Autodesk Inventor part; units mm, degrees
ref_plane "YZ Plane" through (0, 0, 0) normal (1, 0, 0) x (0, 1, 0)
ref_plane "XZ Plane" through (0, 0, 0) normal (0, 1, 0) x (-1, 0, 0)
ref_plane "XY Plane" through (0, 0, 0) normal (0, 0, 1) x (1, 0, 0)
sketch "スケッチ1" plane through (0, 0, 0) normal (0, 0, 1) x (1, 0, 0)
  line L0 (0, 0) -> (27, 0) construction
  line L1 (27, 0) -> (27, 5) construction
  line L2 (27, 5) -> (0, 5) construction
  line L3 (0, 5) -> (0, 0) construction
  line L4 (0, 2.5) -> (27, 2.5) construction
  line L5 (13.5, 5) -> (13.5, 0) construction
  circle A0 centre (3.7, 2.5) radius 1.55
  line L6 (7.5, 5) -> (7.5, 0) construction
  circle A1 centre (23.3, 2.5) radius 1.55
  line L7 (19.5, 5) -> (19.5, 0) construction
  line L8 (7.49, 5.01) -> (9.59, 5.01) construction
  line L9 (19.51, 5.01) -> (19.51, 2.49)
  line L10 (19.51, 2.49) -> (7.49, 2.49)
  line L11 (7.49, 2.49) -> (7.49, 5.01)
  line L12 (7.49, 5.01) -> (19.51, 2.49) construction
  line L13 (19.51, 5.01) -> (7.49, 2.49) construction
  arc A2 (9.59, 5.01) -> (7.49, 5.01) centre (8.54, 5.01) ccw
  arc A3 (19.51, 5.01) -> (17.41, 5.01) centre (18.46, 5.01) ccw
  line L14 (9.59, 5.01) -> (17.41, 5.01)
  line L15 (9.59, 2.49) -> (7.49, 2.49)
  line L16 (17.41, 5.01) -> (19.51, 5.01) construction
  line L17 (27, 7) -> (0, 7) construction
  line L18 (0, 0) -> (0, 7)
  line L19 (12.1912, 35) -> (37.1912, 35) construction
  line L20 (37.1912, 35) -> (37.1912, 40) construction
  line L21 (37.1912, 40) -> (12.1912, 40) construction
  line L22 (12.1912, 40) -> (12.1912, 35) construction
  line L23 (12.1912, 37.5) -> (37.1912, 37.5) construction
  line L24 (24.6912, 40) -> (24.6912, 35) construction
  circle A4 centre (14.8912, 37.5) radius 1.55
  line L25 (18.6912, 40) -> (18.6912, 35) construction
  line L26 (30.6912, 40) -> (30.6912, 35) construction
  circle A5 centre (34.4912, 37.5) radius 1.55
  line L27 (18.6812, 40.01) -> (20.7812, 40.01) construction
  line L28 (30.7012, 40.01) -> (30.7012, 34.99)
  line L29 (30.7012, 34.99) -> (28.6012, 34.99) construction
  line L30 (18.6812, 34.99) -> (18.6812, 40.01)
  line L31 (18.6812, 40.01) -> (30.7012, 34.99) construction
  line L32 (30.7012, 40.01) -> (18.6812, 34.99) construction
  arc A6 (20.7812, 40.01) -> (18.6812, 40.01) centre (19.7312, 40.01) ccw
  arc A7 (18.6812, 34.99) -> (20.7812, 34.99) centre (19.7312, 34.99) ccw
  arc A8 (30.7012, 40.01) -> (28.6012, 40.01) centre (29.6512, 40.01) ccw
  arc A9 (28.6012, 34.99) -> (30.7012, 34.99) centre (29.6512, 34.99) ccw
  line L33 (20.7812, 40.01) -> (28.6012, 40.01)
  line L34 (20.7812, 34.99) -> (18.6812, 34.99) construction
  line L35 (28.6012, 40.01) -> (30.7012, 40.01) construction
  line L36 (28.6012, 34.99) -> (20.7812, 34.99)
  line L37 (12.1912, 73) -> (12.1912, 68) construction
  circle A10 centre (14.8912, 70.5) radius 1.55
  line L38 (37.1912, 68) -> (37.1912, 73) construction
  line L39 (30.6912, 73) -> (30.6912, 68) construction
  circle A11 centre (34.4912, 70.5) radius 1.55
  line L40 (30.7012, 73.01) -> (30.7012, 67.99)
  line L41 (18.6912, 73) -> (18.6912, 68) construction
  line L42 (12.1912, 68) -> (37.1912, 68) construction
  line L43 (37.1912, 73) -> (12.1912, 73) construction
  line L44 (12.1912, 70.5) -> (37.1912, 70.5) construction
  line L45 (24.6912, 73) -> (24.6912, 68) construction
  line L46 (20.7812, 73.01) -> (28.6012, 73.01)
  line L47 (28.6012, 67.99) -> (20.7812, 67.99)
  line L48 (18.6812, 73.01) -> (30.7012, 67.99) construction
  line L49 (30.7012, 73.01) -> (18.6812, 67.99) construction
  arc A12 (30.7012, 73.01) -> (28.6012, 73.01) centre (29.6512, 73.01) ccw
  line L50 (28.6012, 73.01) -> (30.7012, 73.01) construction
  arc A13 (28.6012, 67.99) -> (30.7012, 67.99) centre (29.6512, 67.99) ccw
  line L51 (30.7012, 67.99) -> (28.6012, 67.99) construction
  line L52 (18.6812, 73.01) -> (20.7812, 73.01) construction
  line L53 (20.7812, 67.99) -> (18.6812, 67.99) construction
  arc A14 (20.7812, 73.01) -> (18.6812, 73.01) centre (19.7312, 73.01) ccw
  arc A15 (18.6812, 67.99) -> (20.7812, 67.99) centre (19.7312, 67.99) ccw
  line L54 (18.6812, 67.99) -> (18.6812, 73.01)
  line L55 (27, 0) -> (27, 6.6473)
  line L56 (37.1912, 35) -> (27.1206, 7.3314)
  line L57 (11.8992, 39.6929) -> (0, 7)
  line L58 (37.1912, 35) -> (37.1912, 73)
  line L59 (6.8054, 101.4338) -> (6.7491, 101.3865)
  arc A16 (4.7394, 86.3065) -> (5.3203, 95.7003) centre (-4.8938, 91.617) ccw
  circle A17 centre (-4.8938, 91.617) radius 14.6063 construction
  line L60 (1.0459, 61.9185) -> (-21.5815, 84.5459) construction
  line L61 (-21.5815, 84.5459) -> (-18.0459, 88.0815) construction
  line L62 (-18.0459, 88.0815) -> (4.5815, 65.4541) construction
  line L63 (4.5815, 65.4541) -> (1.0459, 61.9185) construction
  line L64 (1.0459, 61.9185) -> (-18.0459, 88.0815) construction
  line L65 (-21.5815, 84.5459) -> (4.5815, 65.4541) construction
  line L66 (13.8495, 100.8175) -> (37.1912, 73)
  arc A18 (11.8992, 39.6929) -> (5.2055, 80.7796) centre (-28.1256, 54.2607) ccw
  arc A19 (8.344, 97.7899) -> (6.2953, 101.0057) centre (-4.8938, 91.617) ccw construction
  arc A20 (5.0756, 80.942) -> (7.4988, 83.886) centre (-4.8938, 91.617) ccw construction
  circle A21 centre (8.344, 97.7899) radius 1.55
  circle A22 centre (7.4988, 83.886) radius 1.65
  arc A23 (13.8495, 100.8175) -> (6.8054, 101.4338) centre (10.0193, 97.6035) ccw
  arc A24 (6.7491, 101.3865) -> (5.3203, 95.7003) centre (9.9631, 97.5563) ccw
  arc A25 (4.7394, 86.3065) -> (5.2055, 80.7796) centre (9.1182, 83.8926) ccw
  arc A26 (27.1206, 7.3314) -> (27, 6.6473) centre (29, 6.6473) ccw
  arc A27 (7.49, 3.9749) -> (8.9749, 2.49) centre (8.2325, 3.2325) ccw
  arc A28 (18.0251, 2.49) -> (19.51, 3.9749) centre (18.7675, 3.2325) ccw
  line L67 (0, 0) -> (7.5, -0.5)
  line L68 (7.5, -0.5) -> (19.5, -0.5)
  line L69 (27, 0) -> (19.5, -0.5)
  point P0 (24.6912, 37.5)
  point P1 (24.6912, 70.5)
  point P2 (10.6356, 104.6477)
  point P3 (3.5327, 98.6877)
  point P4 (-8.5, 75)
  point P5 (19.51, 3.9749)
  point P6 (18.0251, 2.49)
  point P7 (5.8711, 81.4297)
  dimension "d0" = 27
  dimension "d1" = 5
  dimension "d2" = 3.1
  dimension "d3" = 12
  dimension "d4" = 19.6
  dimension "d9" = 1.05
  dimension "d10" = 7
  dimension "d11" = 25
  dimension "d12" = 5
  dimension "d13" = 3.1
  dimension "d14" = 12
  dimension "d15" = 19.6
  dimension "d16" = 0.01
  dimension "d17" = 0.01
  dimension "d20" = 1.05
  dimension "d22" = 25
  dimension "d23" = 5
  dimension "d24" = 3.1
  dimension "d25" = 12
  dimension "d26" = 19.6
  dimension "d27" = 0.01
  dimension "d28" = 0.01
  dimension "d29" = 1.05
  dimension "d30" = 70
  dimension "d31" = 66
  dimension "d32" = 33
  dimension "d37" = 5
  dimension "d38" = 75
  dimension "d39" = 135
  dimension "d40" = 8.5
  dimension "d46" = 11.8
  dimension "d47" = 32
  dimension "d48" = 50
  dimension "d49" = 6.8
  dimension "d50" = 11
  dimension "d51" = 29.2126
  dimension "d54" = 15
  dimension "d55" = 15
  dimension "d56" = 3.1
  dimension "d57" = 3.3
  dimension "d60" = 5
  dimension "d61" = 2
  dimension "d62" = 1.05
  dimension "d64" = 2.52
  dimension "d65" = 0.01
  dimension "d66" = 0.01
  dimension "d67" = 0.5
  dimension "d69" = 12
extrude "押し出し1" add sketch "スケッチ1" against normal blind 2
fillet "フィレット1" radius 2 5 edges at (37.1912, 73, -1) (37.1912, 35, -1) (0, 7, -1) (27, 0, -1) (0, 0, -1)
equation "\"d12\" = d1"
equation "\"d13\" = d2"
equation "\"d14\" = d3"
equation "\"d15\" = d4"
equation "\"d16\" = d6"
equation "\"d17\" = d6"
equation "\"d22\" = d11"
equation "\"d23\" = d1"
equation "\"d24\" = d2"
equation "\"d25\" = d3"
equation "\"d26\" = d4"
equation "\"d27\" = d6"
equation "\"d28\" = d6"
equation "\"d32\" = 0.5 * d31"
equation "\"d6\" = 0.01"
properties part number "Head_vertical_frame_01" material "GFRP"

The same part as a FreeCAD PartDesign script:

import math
import FreeCAD as App
import Part
import Sketcher
from FreeCAD import Vector
Q = App.Units.Quantity


def edges_at(feature, points):
    """Names of the edges that pass closest to the given points."""
    edges = feature.Shape.Edges
    near = lambda p: min(range(len(edges)), key=lambda i: edges[i].distToShape(Part.Vertex(*p))[0])
    return sorted({f"Edge{near(p) + 1}" for p in points})

doc = App.newDocument("Part")
body = doc.addObject("PartDesign::Body", "Body")

sketch1 = body.newObject("Sketcher::SketchObject", "Sketch")
sketch1.AttachmentSupport = (doc.getObject("XY_Plane"), [""])
sketch1.MapMode = "FlatFace"
sketch1.addGeometry([
    Part.LineSegment(Vector(0, 7, 0), Vector(0, 0, 0)),
    Part.LineSegment(Vector(0, 0, 0), Vector(7.5, -0.5, 0)),
    Part.LineSegment(Vector(7.5, -0.5, 0), Vector(19.5, -0.5, 0)),
    Part.LineSegment(Vector(19.5, -0.5, 0), Vector(27, 0, 0)),
    Part.LineSegment(Vector(27, 0, 0), Vector(27, 6.65, 0)),
    Part.ArcOfCircle(Part.Circle(Vector(29, 6.65, 0), Vector(0, 0, 1), 2), math.radians(160), math.radians(180)),
    Part.LineSegment(Vector(27.12, 7.33, 0), Vector(37.19, 35, 0)),
    Part.LineSegment(Vector(37.19, 35, 0), Vector(37.19, 73, 0)),
    Part.LineSegment(Vector(37.19, 73, 0), Vector(13.85, 100.82, 0)),
    Part.ArcOfCircle(Part.Circle(Vector(10.02, 97.6, 0), Vector(0, 0, 1), 5), math.radians(40), math.radians(130)),
    Part.LineSegment(Vector(6.81, 101.43, 0), Vector(6.75, 101.39, 0)),
    Part.ArcOfCircle(Part.Circle(Vector(9.96, 97.56, 0), Vector(0, 0, 1), 5), math.radians(130), math.radians(202)),
    Part.ArcOfCircle(Part.Circle(Vector(-4.89, 91.62, 0), Vector(0, 0, 1), 11), math.radians(-29), math.radians(22)),
    Part.ArcOfCircle(Part.Circle(Vector(9.12, 83.89, 0), Vector(0, 0, 1), 5), math.radians(151), math.radians(219)),
    Part.ArcOfCircle(Part.Circle(Vector(-28.13, 54.26, 0), Vector(0, 0, 1), 42.59), math.radians(-20), math.radians(39)),
    Part.LineSegment(Vector(11.9, 39.69, 0), Vector(0, 7, 0)),
    Part.Circle(Vector(3.7, 2.5, 0), Vector(0, 0, 1), 1.55),
    Part.ArcOfCircle(Part.Circle(Vector(18.46, 5.01, 0), Vector(0, 0, 1), 1.05), math.radians(0), math.radians(180)),
    Part.LineSegment(Vector(19.51, 5.01, 0), Vector(19.51, 3.97, 0)),
    Part.ArcOfCircle(Part.Circle(Vector(18.77, 3.23, 0), Vector(0, 0, 1), 1.05), math.radians(-135), math.radians(45)),
    Part.LineSegment(Vector(18.03, 2.49, 0), Vector(8.97, 2.49, 0)),
    Part.ArcOfCircle(Part.Circle(Vector(8.23, 3.23, 0), Vector(0, 0, 1), 1.05), math.radians(135), math.radians(315)),
    Part.LineSegment(Vector(7.49, 3.97, 0), Vector(7.49, 5.01, 0)),
    Part.ArcOfCircle(Part.Circle(Vector(8.54, 5.01, 0), Vector(0, 0, 1), 1.05), math.radians(0), math.radians(180)),
    Part.LineSegment(Vector(9.59, 5.01, 0), Vector(17.41, 5.01, 0)),
    Part.Circle(Vector(14.89, 37.5, 0), Vector(0, 0, 1), 1.55),
    Part.Circle(Vector(23.3, 2.5, 0), Vector(0, 0, 1), 1.55),
    Part.ArcOfCircle(Part.Circle(Vector(29.65, 40.01, 0), Vector(0, 0, 1), 1.05), math.radians(0), math.radians(180)),
    Part.LineSegment(Vector(30.7, 40.01, 0), Vector(30.7, 34.99, 0)),
    Part.ArcOfCircle(Part.Circle(Vector(29.65, 34.99, 0), Vector(0, 0, 1), 1.05), math.radians(180), math.radians(360)),
    Part.LineSegment(Vector(28.6, 34.99, 0), Vector(20.78, 34.99, 0)),
    Part.ArcOfCircle(Part.Circle(Vector(19.73, 34.99, 0), Vector(0, 0, 1), 1.05), math.radians(180), math.radians(360)),
    Part.LineSegment(Vector(18.68, 34.99, 0), Vector(18.68, 40.01, 0)),
    Part.ArcOfCircle(Part.Circle(Vector(19.73, 40.01, 0), Vector(0, 0, 1), 1.05), math.radians(0), math.radians(180)),
    Part.LineSegment(Vector(20.78, 40.01, 0), Vector(28.6, 40.01, 0)),
    Part.Circle(Vector(34.49, 37.5, 0), Vector(0, 0, 1), 1.55),
    Part.Circle(Vector(14.89, 70.5, 0), Vector(0, 0, 1), 1.55),
    Part.Circle(Vector(7.5, 83.89, 0), Vector(0, 0, 1), 1.65),
    Part.Circle(Vector(8.34, 97.79, 0), Vector(0, 0, 1), 1.55),
    Part.ArcOfCircle(Part.Circle(Vector(29.65, 73.01, 0), Vector(0, 0, 1), 1.05), math.radians(0), math.radians(180)),
    Part.LineSegment(Vector(30.7, 73.01, 0), Vector(30.7, 67.99, 0)),
    Part.ArcOfCircle(Part.Circle(Vector(29.65, 67.99, 0), Vector(0, 0, 1), 1.05), math.radians(180), math.radians(360)),
    Part.LineSegment(Vector(28.6, 67.99, 0), Vector(20.78, 67.99, 0)),
    Part.ArcOfCircle(Part.Circle(Vector(19.73, 67.99, 0), Vector(0, 0, 1), 1.05), math.radians(180), math.radians(360)),
    Part.LineSegment(Vector(18.68, 67.99, 0), Vector(18.68, 73.01, 0)),
    Part.ArcOfCircle(Part.Circle(Vector(19.73, 73.01, 0), Vector(0, 0, 1), 1.05), math.radians(0), math.radians(180)),
    Part.LineSegment(Vector(20.78, 73.01, 0), Vector(28.6, 73.01, 0)),
    Part.Circle(Vector(34.49, 70.5, 0), Vector(0, 0, 1), 1.55),
], False)
sketch1.addConstraint([
    Sketcher.Constraint("Coincident", 0, 2, 1, 1),
    Sketcher.Constraint("Coincident", 1, 2, 2, 1),
    Sketcher.Constraint("Coincident", 2, 2, 3, 1),
    Sketcher.Constraint("Coincident", 3, 2, 4, 1),
    Sketcher.Constraint("Tangent", 4, 2, 5, 2),
    Sketcher.Constraint("Tangent", 5, 1, 6, 1),
    Sketcher.Constraint("Coincident", 6, 2, 7, 1),
    Sketcher.Constraint("Coincident", 7, 2, 8, 1),
    Sketcher.Constraint("Tangent", 8, 2, 9, 1),
    Sketcher.Constraint("Coincident", 9, 2, 10, 1),
    Sketcher.Constraint("Coincident", 10, 2, 11, 1),
    Sketcher.Constraint("Tangent", 11, 2, 12, 2),
    Sketcher.Constraint("Tangent", 12, 1, 13, 1),
    Sketcher.Constraint("Tangent", 13, 2, 14, 2),
    Sketcher.Constraint("Tangent", 14, 1, 15, 1),
    Sketcher.Constraint("Coincident", 15, 2, 0, 1),
    Sketcher.Constraint("Tangent", 17, 1, 18, 1),
    Sketcher.Constraint("Coincident", 18, 2, 19, 2),
    Sketcher.Constraint("Coincident", 19, 1, 20, 1),
    Sketcher.Constraint("Coincident", 20, 2, 21, 2),
    Sketcher.Constraint("Coincident", 21, 1, 22, 1),
    Sketcher.Constraint("Tangent", 22, 2, 23, 2),
    Sketcher.Constraint("Coincident", 23, 1, 24, 1),
    Sketcher.Constraint("Coincident", 24, 2, 17, 2),
    Sketcher.Constraint("Tangent", 27, 1, 28, 1),
    Sketcher.Constraint("Tangent", 28, 2, 29, 2),
    Sketcher.Constraint("Coincident", 29, 1, 30, 1),
    Sketcher.Constraint("Coincident", 30, 2, 31, 2),
    Sketcher.Constraint("Tangent", 31, 1, 32, 1),
    Sketcher.Constraint("Tangent", 32, 2, 33, 2),
    Sketcher.Constraint("Coincident", 33, 1, 34, 1),
    Sketcher.Constraint("Coincident", 34, 2, 27, 2),
    Sketcher.Constraint("Tangent", 39, 1, 40, 1),
    Sketcher.Constraint("Tangent", 40, 2, 41, 2),
    Sketcher.Constraint("Coincident", 41, 1, 42, 1),
    Sketcher.Constraint("Coincident", 42, 2, 43, 2),
    Sketcher.Constraint("Tangent", 43, 1, 44, 1),
    Sketcher.Constraint("Tangent", 44, 2, 45, 2),
    Sketcher.Constraint("Coincident", 45, 1, 46, 1),
    Sketcher.Constraint("Coincident", 46, 2, 39, 2),
    Sketcher.Constraint("Vertical", 0),
    Sketcher.Constraint("Horizontal", 2),
    Sketcher.Constraint("Vertical", 4),
    Sketcher.Constraint("Vertical", 7),
    Sketcher.Constraint("Vertical", 18),
    Sketcher.Constraint("Horizontal", 20),
    Sketcher.Constraint("Vertical", 22),
    Sketcher.Constraint("Horizontal", 24),
    Sketcher.Constraint("Vertical", 28),
    Sketcher.Constraint("Horizontal", 30),
    Sketcher.Constraint("Vertical", 32),
    Sketcher.Constraint("Horizontal", 34),
    Sketcher.Constraint("Vertical", 40),
    Sketcher.Constraint("Horizontal", 42),
    Sketcher.Constraint("Vertical", 44),
    Sketcher.Constraint("Horizontal", 46),
    Sketcher.Constraint("Coincident", 0, 2, -1, 1),
    Sketcher.Constraint("Equal", 9, 11),
    Sketcher.Constraint("Equal", 11, 13),
    Sketcher.Constraint("Equal", 17, 19),
    Sketcher.Constraint("Equal", 19, 21),
    Sketcher.Constraint("Equal", 21, 23),
    Sketcher.Constraint("Equal", 16, 25),
    Sketcher.Constraint("Equal", 25, 26),
    Sketcher.Constraint("Equal", 23, 27),
    Sketcher.Constraint("Equal", 27, 29),
    Sketcher.Constraint("Equal", 29, 31),
    Sketcher.Constraint("Equal", 31, 33),
    Sketcher.Constraint("Equal", 26, 35),
    Sketcher.Constraint("Equal", 35, 36),
    Sketcher.Constraint("Equal", 36, 38),
    Sketcher.Constraint("Equal", 33, 39),
    Sketcher.Constraint("Equal", 39, 41),
    Sketcher.Constraint("Equal", 41, 43),
    Sketcher.Constraint("Equal", 43, 45),
    Sketcher.Constraint("Equal", 38, 47),
    Sketcher.Constraint("PointOnObject", 3, 2, -1),
    Sketcher.Constraint("Parallel", 6, 15),
    Sketcher.Constraint("Horizontal", 19, 3, 21, 3),
    Sketcher.Constraint("Horizontal", 17, 3, 23, 3),
    Sketcher.Constraint("Horizontal", 16, 3, 26, 3),
    Sketcher.Constraint("Horizontal", 29, 3, 31, 3),
    Sketcher.Constraint("Horizontal", 27, 3, 33, 3),
    Sketcher.Constraint("Horizontal", 25, 3, 35, 3),
    Sketcher.Constraint("Horizontal", 41, 3, 43, 3),
    Sketcher.Constraint("Horizontal", 39, 3, 45, 3),
    Sketcher.Constraint("Horizontal", 36, 3, 47, 3),
    Sketcher.Constraint("Horizontal", 18, 2, 21, 1),
    Sketcher.Constraint("Horizontal", 22, 2, 23, 1),
    Sketcher.Constraint("Horizontal", 28, 2, 29, 1),
    Sketcher.Constraint("Horizontal", 32, 2, 33, 1),
    Sketcher.Constraint("Horizontal", 40, 2, 41, 1),
    Sketcher.Constraint("Horizontal", 44, 2, 45, 1),
    Sketcher.Constraint("Vertical", 25, 3, 36, 3),
    Sketcher.Constraint("Vertical", 29, 3, 39, 3),
    Sketcher.Constraint("Vertical", 33, 3, 43, 3),
    Sketcher.Constraint("Vertical", 35, 3, 47, 3),
    Sketcher.Constraint("Equal", 24, 30),
    Sketcher.Constraint("Equal", 32, 40),
    Sketcher.Constraint("Equal", 1, 3),
    Sketcher.Constraint("Radius", 9, 5.0),
    Sketcher.Constraint("Radius", 12, 11.0),
    Sketcher.Constraint("Diameter", 16, 3.1),
    Sketcher.Constraint("Diameter", 37, 3.3),
    Sketcher.Constraint("DistanceX", 2, 1, 2, 2, 12.0),
    Sketcher.Constraint("DistanceY", 0, 2, 0, 1, 7.0),
    Sketcher.Constraint("Angle", 6, Q("70 deg")),
    Sketcher.Constraint("Radius", 17, 1.05),
    Sketcher.Constraint("DistanceX", -1, 1, 3, 2, 27.0),
    Sketcher.Constraint("DistanceY", 1, 2, -1, 1, 0.5),
    Sketcher.Constraint("DistanceY", 7, 1, 7, 2, 38.0),
    Sketcher.Constraint("Angle", 8, Q("130 deg")),
    Sketcher.Constraint("DistanceY", -1, 1, 6, 2, 35.0),
    Sketcher.Constraint("Radius", 5, 1.999),
    Sketcher.Constraint("DistanceX", 24, 1, 24, 2, 7.82),
    Sketcher.Constraint("DistanceY", 28, 2, 28, 1, 5.02),
    Sketcher.Constraint("DistanceX", -1, 1, 16, 3, 3.7),
    Sketcher.Constraint("DistanceY", -1, 1, 16, 3, 2.5),
    Sketcher.Constraint("DistanceY", -1, 1, 25, 3, 37.5),
    Sketcher.Constraint("DistanceX", -1, 1, 26, 3, 23.3),
    Sketcher.Constraint("DistanceY", -1, 1, 36, 3, 70.5),
    Sketcher.Constraint("Radius", 14, 42.5935),
    Sketcher.Constraint("DistanceY", 18, 2, 18, 1, 1.035),
    Sketcher.Constraint("DistanceX", -1, 1, 17, 3, 18.46),
    Sketcher.Constraint("DistanceY", -1, 1, 17, 3, 5.01),
    Sketcher.Constraint("DistanceY", -1, 1, 27, 3, 40.01),
    Sketcher.Constraint("DistanceY", -1, 1, 38, 3, 97.79),
    Sketcher.Constraint("DistanceY", -1, 1, 39, 3, 73.01),
    Sketcher.Constraint("DistanceY", -1, 1, 19, 1, 2.49),
    Sketcher.Constraint("Distance", 15, 34.791),
    Sketcher.Constraint("DistanceY", 4, 1, 4, 2, 6.6473),
    Sketcher.Constraint("DistanceX", -1, 1, 11, 3, 9.963),
    Sketcher.Constraint("DistanceY", -1, 1, 12, 3, 91.617),
    Sketcher.Constraint("DistanceY", -1, 1, 37, 3, 83.886),
    Sketcher.Constraint("DistanceX", -1, 1, 38, 3, 8.344),
    Sketcher.Constraint("DistanceX", -1, 1, 10, 2, 6.749),
    Sketcher.Constraint("Distance", 8, 36.3132),
    Sketcher.Constraint("Distance", 10, 0.0735),
    Sketcher.Constraint("DistanceY", -1, 1, 11, 3, 97.5563),
    Sketcher.Constraint("DistanceX", -1, 1, 19, 3, 18.7675),
    Sketcher.Constraint("DistanceX", -1, 1, 25, 3, 14.8912),
    Sketcher.Constraint("DistanceX", -1, 1, 27, 3, 29.6512),
    Sketcher.Constraint("DistanceX", -1, 1, 35, 3, 34.4912),
    Sketcher.Constraint("DistanceX", -1, 1, 37, 3, 7.4988),
])
pad1 = body.newObject("PartDesign::Pad", "Pad")
pad1.Profile = sketch1
pad1.Length = 2
pad1.Reversed = True
doc.recompute()

fillet = body.newObject("PartDesign::Fillet", "Fillet")
fillet.Base = (pad1, edges_at(pad1, [
    (37.191, 73, -1),
    (37.191, 35, -1),
    (0, 7, -1),
    (27, 0, -1),
    (0, 0, -1),
]))
fillet.Radius = 2

doc.recompute()
